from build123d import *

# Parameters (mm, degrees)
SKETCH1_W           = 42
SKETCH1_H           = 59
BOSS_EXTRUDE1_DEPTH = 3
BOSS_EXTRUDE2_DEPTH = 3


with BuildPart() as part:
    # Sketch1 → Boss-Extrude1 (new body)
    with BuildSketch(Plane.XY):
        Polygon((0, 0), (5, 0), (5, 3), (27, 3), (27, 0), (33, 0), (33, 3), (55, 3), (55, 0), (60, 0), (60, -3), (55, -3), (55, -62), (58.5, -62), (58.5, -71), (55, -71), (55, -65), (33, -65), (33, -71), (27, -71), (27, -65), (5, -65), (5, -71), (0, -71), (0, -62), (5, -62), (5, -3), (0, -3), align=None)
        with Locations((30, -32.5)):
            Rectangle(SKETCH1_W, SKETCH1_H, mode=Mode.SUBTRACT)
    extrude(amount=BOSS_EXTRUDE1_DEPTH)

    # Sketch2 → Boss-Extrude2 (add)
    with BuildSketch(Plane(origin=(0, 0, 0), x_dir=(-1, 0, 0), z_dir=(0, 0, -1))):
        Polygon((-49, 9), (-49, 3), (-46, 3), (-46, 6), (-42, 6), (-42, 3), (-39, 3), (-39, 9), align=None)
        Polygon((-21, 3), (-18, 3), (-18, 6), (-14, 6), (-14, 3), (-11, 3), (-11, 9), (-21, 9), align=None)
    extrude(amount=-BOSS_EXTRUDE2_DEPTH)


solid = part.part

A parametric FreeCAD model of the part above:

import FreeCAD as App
import Part
import Sketcher

V = App.Vector


def add_polygon(sketch, points):
    """Adds a closed chain of lines whose ends are joined by coincident constraints."""
    first, n = sketch.GeometryCount, len(points)
    for a, b in zip(points, points[1:] + points[:1]):
        sketch.addGeometry(Part.LineSegment(App.Vector(*a, 0), App.Vector(*b, 0)), False)
    for i in range(n):
        sketch.addConstraint(Sketcher.Constraint("Coincident", first + i, 2, first + (i + 1) % n, 1))

doc = App.newDocument("Part")
body = doc.addObject("PartDesign::Body", "Body")

sketch1 = body.newObject("Sketcher::SketchObject", "Sketch")
sketch1.AttachmentSupport = (doc.getObject("XY_Plane"), [""])
sketch1.MapMode = "FlatFace"
add_polygon(sketch1, [(5, 0), (0, 0), (0, -3), (5, -3), (5, -62), (0, -62), (0, -71), (5, -71), (5, -65), (27, -65), (27, -71), (33, -71), (33, -65), (55, -65), (55, -71), (58.5, -71), (58.5, -62), (55, -62), (55, -3), (60, -3), (60, 0), (55, 0), (55, 3), (33, 3), (33, 0), (27, 0), (27, 3), (5, 3)])
add_polygon(sketch1, [(9, -62), (9, -3), (51, -3), (51, -62)])
sketch1.addConstraint([
    Sketcher.Constraint("Horizontal", 0),
    Sketcher.Constraint("Vertical", 1),
    Sketcher.Constraint("Horizontal", 2),
    Sketcher.Constraint("Vertical", 3),
    Sketcher.Constraint("Horizontal", 4),
    Sketcher.Constraint("Vertical", 5),
    Sketcher.Constraint("Horizontal", 6),
    Sketcher.Constraint("Vertical", 7),
    Sketcher.Constraint("Horizontal", 8),
    Sketcher.Constraint("Vertical", 9),
    Sketcher.Constraint("Horizontal", 10),
    Sketcher.Constraint("Vertical", 11),
    Sketcher.Constraint("Horizontal", 12),
    Sketcher.Constraint("Vertical", 13),
    Sketcher.Constraint("Horizontal", 14),
    Sketcher.Constraint("Vertical", 15),
    Sketcher.Constraint("Horizontal", 16),
    Sketcher.Constraint("Vertical", 17),
    Sketcher.Constraint("Horizontal", 18),
    Sketcher.Constraint("Vertical", 19),
    Sketcher.Constraint("Horizontal", 20),
    Sketcher.Constraint("Vertical", 21),
    Sketcher.Constraint("Horizontal", 22),
    Sketcher.Constraint("Vertical", 23),
    Sketcher.Constraint("Horizontal", 24),
    Sketcher.Constraint("Vertical", 25),
    Sketcher.Constraint("Horizontal", 26),
    Sketcher.Constraint("Vertical", 27),
    Sketcher.Constraint("Vertical", 28),
    Sketcher.Constraint("Horizontal", 29),
    Sketcher.Constraint("Vertical", 30),
    Sketcher.Constraint("Horizontal", 31),
    Sketcher.Constraint("Coincident", 0, 2, -1, 1),
    Sketcher.Constraint("Symmetric", 17, 2, 21, 2, -1),
    Sketcher.Constraint("Symmetric", 2, 2, 26, 2, -1),
    Sketcher.Constraint("PointOnObject", 4, 2, -2),
    Sketcher.Constraint("PointOnObject", 19, 2, -1),
    Sketcher.Constraint("PointOnObject", 23, 2, -1),
    Sketcher.Constraint("Horizontal", 6, 2, 9, 2),
    Sketcher.Constraint("Horizontal", 8, 2, 11, 2),
    Sketcher.Constraint("Horizontal", 10, 2, 13, 2),
    Sketcher.Constraint("Horizontal", 4, 2, 15, 2),
    Sketcher.Constraint("Horizontal", 2, 2, 17, 2),
    Sketcher.Constraint("Horizontal", 18, 2, 28, 2),
    Sketcher.Constraint("Horizontal", 16, 2, 30, 2),
    Sketcher.Constraint("Vertical", 3, 2, 6, 2),
    Sketcher.Constraint("Vertical", 13, 2, 16, 2),
    Sketcher.Constraint("Vertical", 11, 2, 22, 2),
    Sketcher.Constraint("Vertical", 9, 2, 24, 2),
    Sketcher.Constraint("Equal", 8, 12),
    Sketcher.Constraint("Equal", 6, 18),
    Sketcher.Constraint("Equal", 24, 7),
    Sketcher.Constraint("DistanceX", 0, 2, 0, 1, 5.0),
    Sketcher.Constraint("DistanceX", 8, 1, 8, 2, 22.0),
    Sketcher.Constraint("DistanceX", 10, 1, 10, 2, 6.0),
    Sketcher.Constraint("DistanceX", 29, 1, 29, 2, 42.0),
    Sketcher.Constraint("DistanceY", 1, 2, 1, 1, 3.0),
    Sketcher.Constraint("DistanceY", 3, 2, 3, 1, 59.0),
    Sketcher.Constraint("DistanceY", 5, 2, 5, 1, 9.0),
    Sketcher.Constraint("DistanceX", 14, 1, 14, 2, 3.5),
    Sketcher.Constraint("DistanceX", -1, 1, 28, 2, 9.0),
])
pad1 = body.newObject("PartDesign::Pad", "Pad")
pad1.Profile = sketch1
pad1.Length = 3

sketch2 = body.newObject("Sketcher::SketchObject", "Sketch001")
sketch2.AttachmentSupport = (doc.getObject("XY_Plane"), [""])
sketch2.MapMode = "FlatFace"
add_polygon(sketch2, [(49, 9), (49, 3), (46, 3), (46, 6), (42, 6), (42, 3), (39, 3), (39, 9)])
add_polygon(sketch2, [(21, 3), (18, 3), (18, 6), (14, 6), (14, 3), (11, 3), (11, 9), (21, 9)])
sketch2.addConstraint([
    Sketcher.Constraint("Vertical", 0),
    Sketcher.Constraint("Horizontal", 1),
    Sketcher.Constraint("Vertical", 2),
    Sketcher.Constraint("Horizontal", 3),
    Sketcher.Constraint("Vertical", 4),
    Sketcher.Constraint("Horizontal", 5),
    Sketcher.Constraint("Vertical", 6),
    Sketcher.Constraint("Horizontal", 7),
    Sketcher.Constraint("Horizontal", 8),
    Sketcher.Constraint("Vertical", 9),
    Sketcher.Constraint("Horizontal", 10),
    Sketcher.Constraint("Vertical", 11),
    Sketcher.Constraint("Horizontal", 12),
    Sketcher.Constraint("Vertical", 13),
    Sketcher.Constraint("Horizontal", 14),
    Sketcher.Constraint("Vertical", 15),
    Sketcher.Constraint("Horizontal", 1, 2, 4, 2),
    Sketcher.Constraint("Horizontal", 5, 2, 8, 2),
    Sketcher.Constraint("Horizontal", 3, 2, 9, 2),
    Sketcher.Constraint("Horizontal", 8, 2, 11, 2),
    Sketcher.Constraint("Horizontal", 7, 2, 13, 2),
    Sketcher.Constraint("Equal", 1, 5),
    Sketcher.Constraint("Equal", 5, 8),
    Sketcher.Constraint("Equal", 3, 10),
    Sketcher.Constraint("Equal", 8, 12),
    Sketcher.Constraint("Equal", 12, 2),
    Sketcher.Constraint("DistanceX", 1, 2, 1, 1, 3.0),
    Sketcher.Constraint("DistanceX", 3, 2, 3, 1, 4.0),
    Sketcher.Constraint("DistanceY", 0, 2, 0, 1, 6.0),
    Sketcher.Constraint("DistanceX", -1, 1, 0, 2, 49.0),
    Sketcher.Constraint("DistanceY", -1, 1, 0, 2, 3.0),
    Sketcher.Constraint("DistanceX", -1, 1, 8, 2, 18.0),
])
pad2 = body.newObject("PartDesign::Pad", "Pad001")
pad2.Profile = sketch2
pad2.Length = 3

doc.recompute()
